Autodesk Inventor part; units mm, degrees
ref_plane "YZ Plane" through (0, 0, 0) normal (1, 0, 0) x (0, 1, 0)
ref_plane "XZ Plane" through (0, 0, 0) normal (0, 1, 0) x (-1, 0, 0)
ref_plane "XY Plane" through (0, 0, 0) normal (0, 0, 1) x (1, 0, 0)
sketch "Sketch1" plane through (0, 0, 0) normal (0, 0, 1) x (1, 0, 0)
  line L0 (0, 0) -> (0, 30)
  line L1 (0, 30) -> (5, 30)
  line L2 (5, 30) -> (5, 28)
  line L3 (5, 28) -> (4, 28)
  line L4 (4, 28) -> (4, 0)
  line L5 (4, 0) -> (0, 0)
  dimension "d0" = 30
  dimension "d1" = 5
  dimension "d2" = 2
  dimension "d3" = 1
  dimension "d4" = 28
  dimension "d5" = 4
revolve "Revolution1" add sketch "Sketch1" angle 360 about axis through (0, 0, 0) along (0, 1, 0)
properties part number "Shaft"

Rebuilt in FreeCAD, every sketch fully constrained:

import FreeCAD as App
import Part
import Sketcher
from FreeCAD import Vector


def add_polygon(sketch, points):
    """Adds a closed chain of lines whose ends are joined by coincident constraints."""
    first, n = sketch.GeometryCount, len(points)
    for a, b in zip(points, points[1:] + points[:1]):
        sketch.addGeometry(Part.LineSegment(App.Vector(*a, 0), App.Vector(*b, 0)), False)
    for i in range(n):
        sketch.addConstraint(Sketcher.Constraint("Coincident", first + i, 2, first + (i + 1) % n, 1))

doc = App.newDocument("Part")
body = doc.addObject("PartDesign::Body", "Body")

# Sketch on XY plane
sketch1 = body.newObject("Sketcher::SketchObject", "Sketch")
sketch1.AttachmentSupport = (doc.getObject("XY_Plane"), [""])
sketch1.MapMode = "FlatFace"
add_polygon(sketch1, [(0, 30), (0, 0), (4, 0), (4, 28), (5, 28), (5, 30)])  # lines 0-5
sketch1.addConstraint([
    Sketcher.Constraint("Vertical", 0),
    Sketcher.Constraint("Horizontal", 1),
    Sketcher.Constraint("Vertical", 2),
    Sketcher.Constraint("Horizontal", 3),
    Sketcher.Constraint("Vertical", 4),
    Sketcher.Constraint("Horizontal", 5),
    Sketcher.Constraint("Coincident", 0, 2, -1, 1),
    Sketcher.Constraint("DistanceX", 1, 1, 1, 2, 4.0),
    Sketcher.Constraint("DistanceX", 3, 1, 3, 2, 1.0),
    Sketcher.Constraint("DistanceY", 0, 2, 0, 1, 30.0),
    Sketcher.Constraint("DistanceY", 2, 1, 2, 2, 28.0),
])
revolution = body.newObject("PartDesign::Revolution", "Revolution")
revolution.Profile = sketch1
revolution.ReferenceAxis = (sketch1, ["V_Axis"])
revolution.Angle = 360

doc.recompute()
